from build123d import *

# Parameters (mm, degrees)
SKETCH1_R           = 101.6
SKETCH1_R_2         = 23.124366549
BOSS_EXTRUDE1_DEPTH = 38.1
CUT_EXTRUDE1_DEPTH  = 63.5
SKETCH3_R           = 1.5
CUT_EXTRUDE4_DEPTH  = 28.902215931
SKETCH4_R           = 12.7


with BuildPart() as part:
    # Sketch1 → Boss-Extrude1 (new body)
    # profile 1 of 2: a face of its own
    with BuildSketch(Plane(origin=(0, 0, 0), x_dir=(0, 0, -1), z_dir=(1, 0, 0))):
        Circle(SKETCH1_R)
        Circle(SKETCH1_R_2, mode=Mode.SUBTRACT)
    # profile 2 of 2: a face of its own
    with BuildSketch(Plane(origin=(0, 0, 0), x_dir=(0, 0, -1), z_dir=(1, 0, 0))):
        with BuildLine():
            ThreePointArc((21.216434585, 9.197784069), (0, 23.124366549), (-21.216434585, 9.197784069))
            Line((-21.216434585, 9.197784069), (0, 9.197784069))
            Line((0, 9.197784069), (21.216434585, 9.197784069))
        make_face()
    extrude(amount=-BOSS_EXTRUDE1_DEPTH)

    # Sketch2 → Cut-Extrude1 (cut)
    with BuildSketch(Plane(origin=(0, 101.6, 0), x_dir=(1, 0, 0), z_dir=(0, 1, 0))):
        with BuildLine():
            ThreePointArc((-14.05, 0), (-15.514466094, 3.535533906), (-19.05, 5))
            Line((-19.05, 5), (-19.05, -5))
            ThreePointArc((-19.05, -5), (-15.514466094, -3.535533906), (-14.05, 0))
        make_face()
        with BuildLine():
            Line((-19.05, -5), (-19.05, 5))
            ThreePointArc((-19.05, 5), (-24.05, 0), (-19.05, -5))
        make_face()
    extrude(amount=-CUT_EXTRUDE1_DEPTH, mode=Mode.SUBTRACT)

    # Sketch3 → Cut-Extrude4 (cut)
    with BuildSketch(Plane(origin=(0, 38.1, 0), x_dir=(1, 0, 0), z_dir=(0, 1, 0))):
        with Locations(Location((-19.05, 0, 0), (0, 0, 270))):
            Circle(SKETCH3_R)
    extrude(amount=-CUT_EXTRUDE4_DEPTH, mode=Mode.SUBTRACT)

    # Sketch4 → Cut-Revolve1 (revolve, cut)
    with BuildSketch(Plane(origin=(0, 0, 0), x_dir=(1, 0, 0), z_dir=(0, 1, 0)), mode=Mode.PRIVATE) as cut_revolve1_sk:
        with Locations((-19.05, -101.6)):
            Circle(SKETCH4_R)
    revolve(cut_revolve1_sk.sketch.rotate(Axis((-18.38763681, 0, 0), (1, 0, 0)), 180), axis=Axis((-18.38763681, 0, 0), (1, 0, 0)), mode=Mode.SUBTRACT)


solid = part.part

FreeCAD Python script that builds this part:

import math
import FreeCAD as App
import Part
import Sketcher
Q = App.Units.Quantity

doc = App.newDocument("Part")
body = doc.addObject("PartDesign::Body", "Body")

# Sketch on YZ plane
sketch1 = body.newObject("Sketcher::SketchObject", "Sketch")
sketch1.AttachmentSupport = (doc.getObject("YZ_Plane"), [""])
sketch1.MapMode = "FlatFace"
sketch1.addGeometry(Part.Circle(App.Vector(0, 0, 0), App.Vector(0, 0, 1), 101.6), False)
sketch1.addGeometry(Part.ArcOfCircle(Part.Circle(App.Vector(0, 0, 0), App.Vector(0, 0, 1), 23.124367), math.radians(66.562223), math.radians(293.437777)), False)
sketch1.addGeometry(Part.LineSegment(App.Vector(9.197784, 21.216435, 0), App.Vector(9.197784, -21.216435, 0)), False)
sketch1.addConstraint(Sketcher.Constraint("Coincident", 1, 1, 2, 1))
sketch1.addConstraint(Sketcher.Constraint("Coincident", 2, 2, 1, 2))
sketch1.addConstraint(Sketcher.Constraint("Vertical", 2))
sketch1.addConstraint(Sketcher.Constraint("Coincident", 0, 3, -1, 1))
sketch1.addConstraint(Sketcher.Constraint("Coincident", 1, 3, -1, 1))
sketch1.addConstraint(Sketcher.Constraint("Diameter", 0, Q("8 in")))
sketch1.addConstraint(Sketcher.Constraint("Radius", 1, Q("23.124367 mm")))
sketch1.addConstraint(Sketcher.Constraint("DistanceY", 2, 2, 2, 1, Q("42.432869 mm")))
pad1 = body.newObject("PartDesign::Pad", "Pad")
pad1.Profile = sketch1
pad1.Length = Q("1.5 in")
pad1.Reversed = True

# Sketch on XZ plane
sketch2 = body.newObject("Sketcher::SketchObject", "Sketch001")
sketch2.AttachmentSupport = (doc.getObject("XZ_Plane"), [""])
sketch2.MapMode = "FlatFace"
sketch2.AttachmentOffset = App.Placement(App.Vector(0, 0, -4 * 25.4), App.Rotation())
sketch2.addGeometry(Part.ArcOfCircle(Part.Circle(App.Vector(-19.05, 0, 0), App.Vector(0, 0, 1), 5), math.radians(-90), math.radians(0)), False)
sketch2.addGeometry(Part.ArcOfCircle(Part.Circle(App.Vector(-19.05, 0, 0), App.Vector(0, 0, 1), 5), math.radians(90), math.radians(270)), False)
sketch2.addGeometry(Part.ArcOfCircle(Part.Circle(App.Vector(-19.05, 0, 0), App.Vector(0, 0, 1), 5), math.radians(0), math.radians(90)), False)
sketch2.addConstraint(Sketcher.Constraint("Tangent", 0, 1, 1, 2))
sketch2.addConstraint(Sketcher.Constraint("Tangent", 1, 1, 2, 2))
sketch2.addConstraint(Sketcher.Constraint("Tangent", 2, 1, 0, 2))
sketch2.addConstraint(Sketcher.Constraint("Symmetric", 0, 1, 1, 1, -1))
sketch2.addConstraint(Sketcher.Constraint("PointOnObject", 2, 1, -1))
sketch2.addConstraint(Sketcher.Constraint("Vertical", 2, 3, 0, 1))
sketch2.addConstraint(Sketcher.Constraint("DistanceX", 0, 3, -1, 1, Q("0.75 in")))
sketch2.addConstraint(Sketcher.Constraint("Radius", 0, Q("5 mm")))
pocket1 = body.newObject("PartDesign::Pocket", "Pocket")
pocket1.Profile = sketch2
pocket1.Length = Q("2.5 in")
pocket1.Reversed = True

# Sketch on XZ plane
sketch3 = body.newObject("Sketcher::SketchObject", "Sketch002")
sketch3.AttachmentSupport = (doc.getObject("XZ_Plane"), [""])
sketch3.MapMode = "FlatFace"
sketch3.AttachmentOffset = App.Placement(App.Vector(0, 0, -1.5 * 25.4), App.Rotation())
sketch3.addGeometry(Part.Circle(App.Vector(-19.05, 0, 0), App.Vector(0, 0, 1), 1.5), False)
sketch3.addConstraint(Sketcher.Constraint("PointOnObject", 0, 3, -1))
sketch3.addConstraint(Sketcher.Constraint("Diameter", 0, Q("3 mm")))
sketch3.addConstraint(Sketcher.Constraint("DistanceX", 0, 3, -1, 1, Q("0.75 in")))
pocket2 = body.newObject("PartDesign::Pocket", "Pocket001")
pocket2.Profile = sketch3
pocket2.Length = 28.902216
pocket2.Reversed = True

# Sketch on XZ plane
sketch4 = body.newObject("Sketcher::SketchObject", "Sketch003")
sketch4.AttachmentSupport = (doc.getObject("XZ_Plane"), [""])
sketch4.MapMode = "FlatFace"
sketch4.addGeometry(Part.Circle(App.Vector(-19.05, 101.6, 0), App.Vector(0, 0, 1), 12.7), False)
sketch4.addConstraint(Sketcher.Constraint("Diameter", 0, Q("1 in")))
sketch4.addConstraint(Sketcher.Constraint("DistanceY", -1, 1, 0, 3, Q("4 in")))
sketch4.addConstraint(Sketcher.Constraint("DistanceX", 0, 3, -1, 1, Q("0.75 in")))
groove = body.newObject("PartDesign::Groove", "Groove")
groove.Profile = sketch4
groove.ReferenceAxis = (sketch4, ["H_Axis"])
groove.Angle = 360

doc.recompute()
